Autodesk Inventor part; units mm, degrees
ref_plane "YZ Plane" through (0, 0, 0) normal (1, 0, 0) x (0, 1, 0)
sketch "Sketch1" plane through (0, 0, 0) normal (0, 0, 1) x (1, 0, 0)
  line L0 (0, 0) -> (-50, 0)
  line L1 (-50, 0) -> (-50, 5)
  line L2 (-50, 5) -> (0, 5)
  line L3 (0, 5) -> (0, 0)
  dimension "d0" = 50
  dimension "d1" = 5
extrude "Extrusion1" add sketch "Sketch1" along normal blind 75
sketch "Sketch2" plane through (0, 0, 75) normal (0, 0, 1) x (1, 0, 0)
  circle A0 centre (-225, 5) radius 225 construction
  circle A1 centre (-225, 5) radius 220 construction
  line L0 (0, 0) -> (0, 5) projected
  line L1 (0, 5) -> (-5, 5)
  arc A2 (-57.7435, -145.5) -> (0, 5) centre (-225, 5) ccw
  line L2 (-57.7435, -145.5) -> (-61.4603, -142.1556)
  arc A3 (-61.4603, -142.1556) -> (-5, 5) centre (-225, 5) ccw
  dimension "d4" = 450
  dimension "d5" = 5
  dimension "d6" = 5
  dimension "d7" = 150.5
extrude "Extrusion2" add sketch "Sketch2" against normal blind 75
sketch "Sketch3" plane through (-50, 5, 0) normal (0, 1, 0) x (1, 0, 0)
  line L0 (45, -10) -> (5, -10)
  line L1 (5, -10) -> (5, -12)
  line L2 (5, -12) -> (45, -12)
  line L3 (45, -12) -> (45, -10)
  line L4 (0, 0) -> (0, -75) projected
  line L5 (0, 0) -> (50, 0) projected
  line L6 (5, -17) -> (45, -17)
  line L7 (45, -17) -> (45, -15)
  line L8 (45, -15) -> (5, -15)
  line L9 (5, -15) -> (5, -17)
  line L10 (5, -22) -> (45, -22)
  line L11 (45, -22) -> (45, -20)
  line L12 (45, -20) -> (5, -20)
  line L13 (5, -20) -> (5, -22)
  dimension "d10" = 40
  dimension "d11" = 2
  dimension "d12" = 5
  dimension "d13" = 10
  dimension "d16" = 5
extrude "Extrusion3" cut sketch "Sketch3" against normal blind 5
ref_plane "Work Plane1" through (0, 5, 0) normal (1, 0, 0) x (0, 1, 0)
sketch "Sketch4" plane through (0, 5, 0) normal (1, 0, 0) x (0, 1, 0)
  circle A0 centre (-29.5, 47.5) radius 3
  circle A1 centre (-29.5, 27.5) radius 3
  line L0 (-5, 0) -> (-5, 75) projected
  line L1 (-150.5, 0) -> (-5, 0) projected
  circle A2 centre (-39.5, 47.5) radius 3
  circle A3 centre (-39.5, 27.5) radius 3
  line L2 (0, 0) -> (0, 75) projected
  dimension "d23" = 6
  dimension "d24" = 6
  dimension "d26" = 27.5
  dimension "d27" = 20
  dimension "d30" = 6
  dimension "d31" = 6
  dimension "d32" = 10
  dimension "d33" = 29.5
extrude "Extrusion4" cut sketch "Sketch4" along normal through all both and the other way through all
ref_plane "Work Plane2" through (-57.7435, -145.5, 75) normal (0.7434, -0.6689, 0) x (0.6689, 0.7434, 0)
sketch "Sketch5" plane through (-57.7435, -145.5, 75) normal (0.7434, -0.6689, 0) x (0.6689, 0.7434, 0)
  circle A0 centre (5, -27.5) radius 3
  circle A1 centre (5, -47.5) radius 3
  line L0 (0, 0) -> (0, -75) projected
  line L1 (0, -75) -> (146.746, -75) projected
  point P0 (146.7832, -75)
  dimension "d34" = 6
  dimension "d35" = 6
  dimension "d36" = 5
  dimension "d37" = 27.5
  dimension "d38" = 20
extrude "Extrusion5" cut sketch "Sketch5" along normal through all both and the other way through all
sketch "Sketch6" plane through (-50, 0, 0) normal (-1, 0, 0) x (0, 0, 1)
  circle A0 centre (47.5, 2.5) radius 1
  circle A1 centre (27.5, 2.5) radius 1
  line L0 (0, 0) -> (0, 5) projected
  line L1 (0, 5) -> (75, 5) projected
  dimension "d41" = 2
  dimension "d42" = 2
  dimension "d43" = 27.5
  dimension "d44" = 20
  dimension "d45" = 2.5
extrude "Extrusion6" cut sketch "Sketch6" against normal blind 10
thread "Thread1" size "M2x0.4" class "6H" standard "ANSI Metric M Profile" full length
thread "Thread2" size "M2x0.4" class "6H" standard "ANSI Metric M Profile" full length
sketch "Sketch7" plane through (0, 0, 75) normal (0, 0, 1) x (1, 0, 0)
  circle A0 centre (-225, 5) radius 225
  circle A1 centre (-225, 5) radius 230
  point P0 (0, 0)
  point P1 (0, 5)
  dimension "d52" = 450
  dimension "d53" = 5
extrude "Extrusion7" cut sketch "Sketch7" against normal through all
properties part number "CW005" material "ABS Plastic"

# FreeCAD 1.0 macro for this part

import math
import FreeCAD as App
import Part
import Sketcher
Q = App.Units.Quantity


def add_polygon(sketch, points):
    """Adds a closed chain of lines whose ends are joined by coincident constraints."""
    first, n = sketch.GeometryCount, len(points)
    for a, b in zip(points, points[1:] + points[:1]):
        sketch.addGeometry(Part.LineSegment(App.Vector(*a, 0), App.Vector(*b, 0)), False)
    for i in range(n):
        sketch.addConstraint(Sketcher.Constraint("Coincident", first + i, 2, first + (i + 1) % n, 1))

doc = App.newDocument("Part")
body = doc.addObject("PartDesign::Body", "Body")

# Sketch on XY plane
sketch1 = body.newObject("Sketcher::SketchObject", "Sketch")
sketch1.AttachmentSupport = (doc.getObject("XY_Plane"), [""])
sketch1.MapMode = "FlatFace"
add_polygon(sketch1, [(-50, 0), (0, 0), (0, 5), (-50, 5)])  # lines 0-3
sketch1.addConstraint([
    Sketcher.Constraint("Horizontal", 0),
    Sketcher.Constraint("Vertical", 1),
    Sketcher.Constraint("Horizontal", 2),
    Sketcher.Constraint("Vertical", 3),
    Sketcher.Constraint("Coincident", 0, 2, -1, 1),
    Sketcher.Constraint("DistanceX", 0, 1, 0, 2, Q("50 mm")),
    Sketcher.Constraint("DistanceY", 1, 1, 1, 2, Q("5 mm")),
])
pad1 = body.newObject("PartDesign::Pad", "Pad")
pad1.Profile = sketch1
pad1.Length = 75

# Sketch on XY plane
sketch2 = body.newObject("Sketcher::SketchObject", "Sketch001")
sketch2.AttachmentSupport = (doc.getObject("XY_Plane"), [""])
sketch2.MapMode = "FlatFace"
sketch2.AttachmentOffset = App.Placement(App.Vector(0, 0, 75), App.Rotation())
sketch2.addGeometry([
    Part.ArcOfCircle(Part.Circle(App.Vector(-225, 5, 0), App.Vector(0, 0, 1), 225), math.radians(-42), math.radians(0)),
    Part.LineSegment(App.Vector(0, 5, 0), App.Vector(-5, 5, 0)),
    Part.ArcOfCircle(Part.Circle(App.Vector(-225, 5, 0), App.Vector(0, 0, 1), 220), math.radians(-42), math.radians(0)),
    Part.LineSegment(App.Vector(-61.5, -142.2, 0), App.Vector(-57.7, -145.5, 0)),
], False)
sketch2.addConstraint([
    Sketcher.Constraint("Coincident", 0, 2, 1, 1),
    Sketcher.Constraint("Coincident", 1, 2, 2, 2),
    Sketcher.Constraint("Coincident", 2, 1, 3, 1),
    Sketcher.Constraint("Coincident", 3, 2, 0, 1),
    Sketcher.Constraint("Horizontal", 1),
    Sketcher.Constraint("Coincident", 2, 3, 0, 3),
    Sketcher.Constraint("PointOnObject", 0, 2, -2),
    Sketcher.Constraint("Horizontal", 2, 3, 0, 2),
    Sketcher.Constraint("Radius", 0, Q("225 mm")),
    Sketcher.Constraint("DistanceX", 1, 2, 1, 1, Q("5 mm")),
    Sketcher.Constraint("DistanceY", -1, 1, 0, 3, Q("5 mm")),
    Sketcher.Constraint("DistanceY", 3, 2, 1, 2, Q("150.5 mm")),
    Sketcher.Constraint("Angle", 3, Q("-41.981 deg")),
])
pad2 = body.newObject("PartDesign::Pad", "Pad001")
pad2.Profile = sketch2
pad2.Length = 75
pad2.Reversed = True

# Sketch on XZ plane
sketch3 = body.newObject("Sketcher::SketchObject", "Sketch002")
sketch3.AttachmentSupport = (doc.getObject("XZ_Plane"), [""])
sketch3.MapMode = "FlatFace"
sketch3.AttachmentOffset = App.Placement(App.Vector(0, 0, -5), App.Rotation())
add_polygon(sketch3, [(-5, 12), (-5, 10), (-45, 10), (-45, 12)])  # lines 0-3
add_polygon(sketch3, [(-45, 15), (-45, 17), (-5, 17), (-5, 15)])  # lines 4-7
add_polygon(sketch3, [(-45, 20), (-45, 22), (-5, 22), (-5, 20)])  # lines 8-11
sketch3.addConstraint([
    Sketcher.Constraint("Vertical", 0),
    Sketcher.Constraint("Horizontal", 1),
    Sketcher.Constraint("Vertical", 2),
    Sketcher.Constraint("Horizontal", 3),
    Sketcher.Constraint("Vertical", 4),
    Sketcher.Constraint("Horizontal", 5),
    Sketcher.Constraint("Vertical", 6),
    Sketcher.Constraint("Horizontal", 7),
    Sketcher.Constraint("Vertical", 8),
    Sketcher.Constraint("Horizontal", 9),
    Sketcher.Constraint("Vertical", 10),
    Sketcher.Constraint("Horizontal", 11),
    Sketcher.Constraint("Vertical", 2, 2, 4, 2),
    Sketcher.Constraint("Vertical", 3, 2, 5, 2),
    Sketcher.Constraint("Vertical", 7, 2, 8, 2),
    Sketcher.Constraint("Vertical", 6, 2, 9, 2),
    Sketcher.Constraint("Equal", 2, 4),
    Sketcher.Constraint("Equal", 6, 8),
    Sketcher.Constraint("DistanceX", 1, 2, 1, 1, Q("40 mm")),
    Sketcher.Constraint("DistanceY", 0, 2, 0, 1, Q("2 mm")),
    Sketcher.Constraint("DistanceX", 0, 2, -1, 1, Q("5 mm")),
    Sketcher.Constraint("DistanceY", -1, 1, 0, 2, Q("10 mm")),
    Sketcher.Constraint("DistanceY", 2, 2, 4, 2, Q("5 mm")),
    Sketcher.Constraint("DistanceY", 4, 2, 8, 2, Q("5 mm")),
])
pocket1 = body.newObject("PartDesign::Pocket", "Pocket")
pocket1.Profile = sketch3
pocket1.Length = 5
pocket1.Reversed = True

# Sketch on YZ plane
sketch4 = body.newObject("Sketcher::SketchObject", "Sketch003")
sketch4.AttachmentSupport = (doc.getObject("YZ_Plane"), [""])
sketch4.MapMode = "FlatFace"
sketch4.addGeometry([
    Part.Circle(App.Vector(-24.5, 47.5, 0), App.Vector(0, 0, 1), 3),
    Part.Circle(App.Vector(-24.5, 27.5, 0), App.Vector(0, 0, 1), 3),
    Part.Circle(App.Vector(-34.5, 47.5, 0), App.Vector(0, 0, 1), 3),
    Part.Circle(App.Vector(-34.5, 27.5, 0), App.Vector(0, 0, 1), 3),
], False)
sketch4.addConstraint([
    Sketcher.Constraint("Equal", 0, 1),
    Sketcher.Constraint("Equal", 1, 2),
    Sketcher.Constraint("Equal", 2, 3),
    Sketcher.Constraint("Horizontal", 0, 3, 2, 3),
    Sketcher.Constraint("Horizontal", 1, 3, 3, 3),
    Sketcher.Constraint("Vertical", 0, 3, 1, 3),
    Sketcher.Constraint("Vertical", 2, 3, 3, 3),
    Sketcher.Constraint("Diameter", 0, Q("6 mm")),
    Sketcher.Constraint("DistanceY", 1, 3, 0, 3, Q("20 mm")),
    Sketcher.Constraint("DistanceX", 2, 3, 0, 3, Q("10 mm")),
    Sketcher.Constraint("DistanceY", -1, 1, 1, 3, Q("27.5 mm")),
    Sketcher.Constraint("DistanceX", 0, 3, -1, 1, Q("24.5 mm")),
])
pocket2 = body.newObject("PartDesign::Pocket", "Pocket001")
pocket2.Profile = sketch4
pocket2.Type = "ThroughAll"
pocket2.Midplane = True

# Sketch on an angled plane
sketch5 = body.newObject("Sketcher::SketchObject", "Sketch004")
sketch5.Placement = App.Placement(App.Vector(-57.7435, -145.5, 75), App.Rotation(App.Vector(0.668876332, 0.743373696, 0), App.Vector(0, 0, 0.999999999), App.Vector(0.743373696, -0.668876332, 0), "ZXY"))
sketch5.addGeometry([
    Part.Circle(App.Vector(5, -27.5, 0), App.Vector(0, 0, 1), 3),
    Part.Circle(App.Vector(5, -47.5, 0), App.Vector(0, 0, 1), 3),
], False)
sketch5.addConstraint([
    Sketcher.Constraint("Equal", 0, 1),
    Sketcher.Constraint("Vertical", 0, 3, 1, 3),
    Sketcher.Constraint("Diameter", 0, Q("6 mm")),
    Sketcher.Constraint("DistanceX", -1, 1, 0, 3, Q("5 mm")),
    Sketcher.Constraint("DistanceY", 1, 3, 0, 3, Q("20 mm")),
    Sketcher.Constraint("DistanceY", 0, 3, -1, 1, Q("27.5 mm")),
])
pocket3 = body.newObject("PartDesign::Pocket", "Pocket002")
pocket3.Profile = sketch5
pocket3.Type = "ThroughAll"
pocket3.Midplane = True

# Sketch on YZ plane
sketch6 = body.newObject("Sketcher::SketchObject", "Sketch005")
sketch6.AttachmentSupport = (doc.getObject("YZ_Plane"), [""])
sketch6.MapMode = "FlatFace"
sketch6.AttachmentOffset = App.Placement(App.Vector(0, 0, -50), App.Rotation())
sketch6.addGeometry([
    Part.Circle(App.Vector(2.5, 47.5, 0), App.Vector(0, 0, 1), 1),
    Part.Circle(App.Vector(2.5, 27.5, 0), App.Vector(0, 0, 1), 1),
], False)
sketch6.addConstraint([
    Sketcher.Constraint("Equal", 0, 1),
    Sketcher.Constraint("Vertical", 0, 3, 1, 3),
    Sketcher.Constraint("Diameter", 0, Q("2 mm")),
    Sketcher.Constraint("DistanceY", 1, 3, 0, 3, Q("20 mm")),
    Sketcher.Constraint("DistanceX", -1, 1, 0, 3, Q("2.5 mm")),
    Sketcher.Constraint("DistanceY", -1, 1, 1, 3, Q("27.5 mm")),
])
pocket4 = body.newObject("PartDesign::Pocket", "Pocket003")
pocket4.Profile = sketch6
pocket4.Length = 10
pocket4.Reversed = True

# Sketch on XY plane
sketch7 = body.newObject("Sketcher::SketchObject", "Sketch006")
sketch7.AttachmentSupport = (doc.getObject("XY_Plane"), [""])
sketch7.MapMode = "FlatFace"
sketch7.AttachmentOffset = App.Placement(App.Vector(0, 0, 75), App.Rotation())
sketch7.addGeometry([
    Part.Circle(App.Vector(-225, 5, 0), App.Vector(0, 0, 1), 230),
    Part.Circle(App.Vector(-225, 5, 0), App.Vector(0, 0, 1), 225),
], False)
sketch7.addConstraint([
    Sketcher.Constraint("Coincident", 1, 3, 0, 3),
    Sketcher.Constraint("Diameter", 1, Q("450 mm")),
    Sketcher.Constraint("Diameter", 0, Q("460 mm")),
    Sketcher.Constraint("DistanceY", -1, 1, 0, 3, Q("5 mm")),
    Sketcher.Constraint("DistanceX", 0, 3, -1, 1, Q("225 mm")),
])
pocket5 = body.newObject("PartDesign::Pocket", "Pocket004")
pocket5.Profile = sketch7
pocket5.Type = "ThroughAll"

doc.recompute()
